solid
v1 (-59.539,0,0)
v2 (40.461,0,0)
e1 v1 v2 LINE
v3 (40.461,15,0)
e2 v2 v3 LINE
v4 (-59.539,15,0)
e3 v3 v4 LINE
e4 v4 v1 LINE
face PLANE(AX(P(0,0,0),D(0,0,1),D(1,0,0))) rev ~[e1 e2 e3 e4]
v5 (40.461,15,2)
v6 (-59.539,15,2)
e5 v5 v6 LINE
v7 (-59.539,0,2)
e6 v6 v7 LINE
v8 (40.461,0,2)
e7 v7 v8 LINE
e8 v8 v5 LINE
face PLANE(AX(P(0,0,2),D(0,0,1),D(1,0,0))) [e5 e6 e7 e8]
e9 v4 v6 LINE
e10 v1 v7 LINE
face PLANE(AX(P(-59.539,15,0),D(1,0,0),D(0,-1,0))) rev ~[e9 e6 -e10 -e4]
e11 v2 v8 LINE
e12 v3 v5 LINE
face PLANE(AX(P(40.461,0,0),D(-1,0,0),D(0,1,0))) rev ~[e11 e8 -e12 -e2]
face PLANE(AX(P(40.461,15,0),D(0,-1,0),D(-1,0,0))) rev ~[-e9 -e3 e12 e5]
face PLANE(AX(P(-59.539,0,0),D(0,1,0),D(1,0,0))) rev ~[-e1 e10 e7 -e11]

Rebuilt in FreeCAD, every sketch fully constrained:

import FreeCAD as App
import Part
import Sketcher

V = App.Vector
Q = App.Units.Quantity

doc = App.newDocument("Part")
params = doc.addObject("Spreadsheet::Sheet", "Params")
for row, (alias, value) in enumerate([
    ("sketch1_width", "100 mm"),
    ("sketch1_height", "15 mm"),
    ("pad1_length", "2 mm"),
], start=1):
    params.set(f"A{row}", alias)
    params.set(f"B{row}", "=" + value)
    params.setAlias(f"B{row}", alias)

body = doc.addObject("PartDesign::Body", "Body")

sketch1 = doc.addObject("Sketcher::SketchObject", "Sketch")
body.addObject(sketch1)
sketch1.AttachmentSupport = (doc.XY_Plane, [""])
sketch1.MapMode = "FlatFace"
sketch1.addGeometry(Part.LineSegment(V(-59.539, 15, 0), V(-59.539, 0, 0)), False)
sketch1.addGeometry(Part.LineSegment(V(-59.539, 0, 0), V(40.461, 0, 0)), False)
sketch1.addGeometry(Part.LineSegment(V(40.461, 0, 0), V(40.461, 15, 0)), False)
sketch1.addGeometry(Part.LineSegment(V(40.461, 15, 0), V(-59.539, 15, 0)), False)
sketch1.addConstraint(Sketcher.Constraint("Coincident", 0, 2, 1, 1))
sketch1.addConstraint(Sketcher.Constraint("Coincident", 1, 2, 2, 1))
sketch1.addConstraint(Sketcher.Constraint("Coincident", 2, 2, 3, 1))
sketch1.addConstraint(Sketcher.Constraint("Coincident", 3, 2, 0, 1))
sketch1.addConstraint(Sketcher.Constraint("Vertical", 0))
sketch1.addConstraint(Sketcher.Constraint("Horizontal", 1))
sketch1.addConstraint(Sketcher.Constraint("Vertical", 2))
sketch1.addConstraint(Sketcher.Constraint("Horizontal", 3))
sketch1.addConstraint(Sketcher.Constraint("PointOnObject", 0, 2, -1))
sketch1.addConstraint(Sketcher.Constraint("DistanceX", 1, 1, 1, 2, Q("100 mm")))
sketch1.addConstraint(Sketcher.Constraint("DistanceY", 0, 2, 0, 1, Q("15 mm")))
sketch1.addConstraint(Sketcher.Constraint("DistanceX", 0, 2, -1, 1, Q("59.539 mm")))
sketch1.setExpression("Constraints[9]", "Params.sketch1_width")
sketch1.setExpression("Constraints[10]", "Params.sketch1_height")
pad1 = doc.addObject("PartDesign::Pad", "Pad")
body.addObject(pad1)
pad1.Profile = sketch1
pad1.setExpression("Length", "Params.pad1_length")

doc.recompute()
